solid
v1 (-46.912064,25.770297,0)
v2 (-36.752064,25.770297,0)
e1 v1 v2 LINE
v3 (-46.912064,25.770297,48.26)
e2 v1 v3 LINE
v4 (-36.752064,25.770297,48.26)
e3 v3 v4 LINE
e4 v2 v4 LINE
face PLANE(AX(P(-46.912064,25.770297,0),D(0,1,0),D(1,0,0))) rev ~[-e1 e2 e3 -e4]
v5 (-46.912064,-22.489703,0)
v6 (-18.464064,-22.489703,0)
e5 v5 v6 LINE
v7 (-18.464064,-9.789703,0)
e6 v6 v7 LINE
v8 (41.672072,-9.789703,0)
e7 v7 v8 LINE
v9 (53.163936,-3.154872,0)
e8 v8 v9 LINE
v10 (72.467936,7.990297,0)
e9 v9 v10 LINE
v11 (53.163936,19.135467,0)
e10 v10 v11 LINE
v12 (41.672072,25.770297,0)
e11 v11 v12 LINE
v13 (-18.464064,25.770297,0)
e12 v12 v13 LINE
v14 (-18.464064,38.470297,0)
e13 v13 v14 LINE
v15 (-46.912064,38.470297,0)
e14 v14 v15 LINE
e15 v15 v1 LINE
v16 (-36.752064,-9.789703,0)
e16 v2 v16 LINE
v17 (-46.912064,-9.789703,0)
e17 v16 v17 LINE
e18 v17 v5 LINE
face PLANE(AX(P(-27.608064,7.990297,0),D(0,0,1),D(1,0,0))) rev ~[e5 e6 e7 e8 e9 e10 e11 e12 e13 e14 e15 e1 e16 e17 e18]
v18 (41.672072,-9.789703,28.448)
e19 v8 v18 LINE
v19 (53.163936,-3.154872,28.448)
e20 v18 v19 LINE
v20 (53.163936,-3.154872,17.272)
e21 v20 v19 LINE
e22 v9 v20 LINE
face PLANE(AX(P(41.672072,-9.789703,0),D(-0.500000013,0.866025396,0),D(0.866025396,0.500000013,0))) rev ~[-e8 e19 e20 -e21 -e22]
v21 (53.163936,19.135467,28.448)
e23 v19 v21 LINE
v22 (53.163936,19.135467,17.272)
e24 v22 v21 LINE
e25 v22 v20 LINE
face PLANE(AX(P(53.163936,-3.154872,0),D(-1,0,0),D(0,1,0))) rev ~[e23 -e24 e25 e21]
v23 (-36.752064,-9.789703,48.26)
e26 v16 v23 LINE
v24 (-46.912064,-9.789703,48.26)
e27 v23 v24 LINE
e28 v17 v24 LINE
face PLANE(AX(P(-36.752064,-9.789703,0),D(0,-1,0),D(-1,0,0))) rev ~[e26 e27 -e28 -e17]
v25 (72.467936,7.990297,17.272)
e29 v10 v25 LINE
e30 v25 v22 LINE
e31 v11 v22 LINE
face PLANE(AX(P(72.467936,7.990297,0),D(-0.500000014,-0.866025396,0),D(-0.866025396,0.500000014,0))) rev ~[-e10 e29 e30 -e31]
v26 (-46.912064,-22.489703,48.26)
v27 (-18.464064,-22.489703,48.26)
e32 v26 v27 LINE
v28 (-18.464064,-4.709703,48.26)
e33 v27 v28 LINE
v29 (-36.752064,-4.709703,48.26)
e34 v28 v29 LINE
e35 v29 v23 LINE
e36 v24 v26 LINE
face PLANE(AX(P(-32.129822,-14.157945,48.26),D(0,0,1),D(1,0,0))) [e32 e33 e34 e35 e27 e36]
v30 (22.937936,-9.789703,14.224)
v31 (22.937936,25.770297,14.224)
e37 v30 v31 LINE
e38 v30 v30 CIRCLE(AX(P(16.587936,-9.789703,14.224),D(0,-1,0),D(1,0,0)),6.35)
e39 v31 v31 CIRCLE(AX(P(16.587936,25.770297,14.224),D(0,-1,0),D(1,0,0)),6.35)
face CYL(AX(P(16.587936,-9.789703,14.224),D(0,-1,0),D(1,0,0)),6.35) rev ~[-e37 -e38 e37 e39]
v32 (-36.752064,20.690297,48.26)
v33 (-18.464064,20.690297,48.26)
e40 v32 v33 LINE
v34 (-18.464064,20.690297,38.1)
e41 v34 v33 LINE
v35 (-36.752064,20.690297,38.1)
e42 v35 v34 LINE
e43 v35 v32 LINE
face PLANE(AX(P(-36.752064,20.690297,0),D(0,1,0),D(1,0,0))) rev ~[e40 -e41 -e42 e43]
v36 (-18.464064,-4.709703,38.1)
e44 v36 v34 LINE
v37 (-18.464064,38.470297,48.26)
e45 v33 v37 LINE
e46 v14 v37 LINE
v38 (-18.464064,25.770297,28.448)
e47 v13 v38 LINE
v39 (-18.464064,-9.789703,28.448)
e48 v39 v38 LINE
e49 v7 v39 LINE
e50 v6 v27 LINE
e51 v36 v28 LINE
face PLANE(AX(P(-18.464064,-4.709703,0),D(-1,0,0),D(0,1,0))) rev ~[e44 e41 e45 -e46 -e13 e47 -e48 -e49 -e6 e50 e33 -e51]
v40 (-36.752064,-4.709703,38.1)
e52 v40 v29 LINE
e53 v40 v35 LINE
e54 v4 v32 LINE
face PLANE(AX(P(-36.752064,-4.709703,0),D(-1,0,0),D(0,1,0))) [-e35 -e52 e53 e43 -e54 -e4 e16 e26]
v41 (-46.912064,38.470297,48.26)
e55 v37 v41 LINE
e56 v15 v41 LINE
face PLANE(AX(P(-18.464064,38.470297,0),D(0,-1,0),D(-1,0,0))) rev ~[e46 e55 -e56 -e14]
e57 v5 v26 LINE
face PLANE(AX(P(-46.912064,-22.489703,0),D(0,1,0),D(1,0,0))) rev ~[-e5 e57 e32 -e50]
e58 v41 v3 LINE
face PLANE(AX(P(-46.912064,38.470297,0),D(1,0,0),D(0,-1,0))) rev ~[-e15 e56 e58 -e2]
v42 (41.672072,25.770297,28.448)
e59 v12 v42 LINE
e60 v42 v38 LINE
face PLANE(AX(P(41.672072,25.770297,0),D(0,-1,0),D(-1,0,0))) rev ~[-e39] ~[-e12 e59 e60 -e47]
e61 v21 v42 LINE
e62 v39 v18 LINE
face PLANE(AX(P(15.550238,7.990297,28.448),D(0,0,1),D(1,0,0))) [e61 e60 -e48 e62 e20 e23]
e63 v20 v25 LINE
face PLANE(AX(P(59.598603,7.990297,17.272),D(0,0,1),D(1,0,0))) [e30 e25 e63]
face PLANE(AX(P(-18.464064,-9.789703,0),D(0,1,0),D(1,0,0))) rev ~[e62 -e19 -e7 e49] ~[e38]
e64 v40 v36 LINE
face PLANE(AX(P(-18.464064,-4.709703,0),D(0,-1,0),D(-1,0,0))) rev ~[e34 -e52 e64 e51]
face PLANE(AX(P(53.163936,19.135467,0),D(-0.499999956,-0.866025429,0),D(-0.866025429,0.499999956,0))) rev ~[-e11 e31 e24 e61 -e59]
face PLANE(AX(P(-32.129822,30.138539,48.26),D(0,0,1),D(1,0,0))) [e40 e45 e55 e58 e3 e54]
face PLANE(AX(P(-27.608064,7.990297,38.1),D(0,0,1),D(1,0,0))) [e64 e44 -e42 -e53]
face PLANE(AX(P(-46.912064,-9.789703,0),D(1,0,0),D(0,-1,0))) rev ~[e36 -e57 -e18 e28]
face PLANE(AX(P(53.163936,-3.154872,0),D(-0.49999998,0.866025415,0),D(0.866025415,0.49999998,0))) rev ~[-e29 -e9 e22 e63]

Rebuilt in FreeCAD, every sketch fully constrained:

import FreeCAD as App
import Part
import Sketcher

V = App.Vector
Q = App.Units.Quantity

doc = App.newDocument("Part")
body = doc.addObject("PartDesign::Body", "Body")

# Sketch on XY plane
sketch1 = doc.addObject("Sketcher::SketchObject", "Sketch")
body.addObject(sketch1)
sketch1.AttachmentSupport = (doc.XY_Plane, [""])
sketch1.MapMode = "FlatFace"
sketch1.addGeometry([
    Part.LineSegment(V(41.672072, 25.770297, 0), V(-18.464064, 25.770297, 0)),  # 0
    Part.LineSegment(V(-18.464064, 25.770297, 0), V(-18.464064, -9.789703, 0)),  # 1
    Part.LineSegment(V(-18.464064, -9.789703, 0), V(41.672072, -9.789703, 0)),  # 2
    Part.LineSegment(V(41.672072, -9.789703, 0), V(53.163936, -3.154872, 0)),  # 3
    Part.LineSegment(V(53.163936, -3.154872, 0), V(53.163936, 19.135467, 0)),  # 4
    Part.LineSegment(V(53.163936, 19.135467, 0), V(41.672072, 25.770297, 0)),  # 5
], False)
sketch1.addConstraint([
    Sketcher.Constraint("Coincident", 0, 2, 1, 1),
    Sketcher.Constraint("Coincident", 1, 2, 2, 1),
    Sketcher.Constraint("Coincident", 2, 2, 3, 1),
    Sketcher.Constraint("Coincident", 3, 2, 4, 1),
    Sketcher.Constraint("Coincident", 4, 2, 5, 1),
    Sketcher.Constraint("Coincident", 5, 2, 0, 1),
    Sketcher.Constraint("Horizontal", 0),
    Sketcher.Constraint("Vertical", 1),
    Sketcher.Constraint("Horizontal", 2),
    Sketcher.Constraint("Vertical", 4),
    Sketcher.Constraint("Vertical", 2, 2, 5, 2),
    Sketcher.Constraint("Equal", 3, 5),
    Sketcher.Constraint("DistanceY", 1, 2, 1, 1, Q("1.4 in")),
    Sketcher.Constraint("Angle", 3, Q("30.000001 deg")),
    Sketcher.Constraint("DistanceX", 1, 2, 3, 2, Q("2.82 in")),
    Sketcher.Constraint("DistanceY", 4, 1, 4, 2, 22.290339),
    Sketcher.Constraint("DistanceX", 0, 2, -1, 1, 18.464064),
    Sketcher.Constraint("DistanceY", -1, 1, 0, 2, 25.770297),
])
pad1 = doc.addObject("PartDesign::Pad", "Pad")
body.addObject(pad1)
pad1.Profile = sketch1
pad1.Length = Q("1.12 in")

# Sketch on XY plane
sketch2 = doc.addObject("Sketcher::SketchObject", "Sketch001")
body.addObject(sketch2)
sketch2.AttachmentSupport = (doc.XY_Plane, [""])
sketch2.MapMode = "FlatFace"
sketch2.addGeometry([
    Part.LineSegment(V(72.467936, 7.990297, 0), V(53.163936, 19.135467, 0)),
    Part.LineSegment(V(53.163936, 19.135467, 0), V(53.163936, -3.154872, 0)),
    Part.LineSegment(V(53.163936, -3.154872, 0), V(72.467936, 7.990297, 0)),
], False)
sketch2.addConstraint([
    Sketcher.Constraint("Coincident", 0, 2, 1, 1),
    Sketcher.Constraint("Coincident", 1, 2, 2, 1),
    Sketcher.Constraint("Coincident", 2, 2, 0, 1),
    Sketcher.Constraint("Vertical", 1),
    Sketcher.Constraint("Equal", 0, 2),
    Sketcher.Constraint("Angle", 0, Q("149.999999 deg")),
    Sketcher.Constraint("DistanceX", 1, 2, 2, 2, Q("0.76 in")),
    Sketcher.Constraint("DistanceX", -1, 1, 0, 2, 53.163936),
    Sketcher.Constraint("DistanceY", -1, 1, 0, 2, 19.135467),
])
pad2 = doc.addObject("PartDesign::Pad", "Pad001")
body.addObject(pad2)
pad2.Profile = sketch2
pad2.Length = Q("0.68 in")

# Sketch on XY plane
sketch3 = doc.addObject("Sketcher::SketchObject", "Sketch002")
body.addObject(sketch3)
sketch3.AttachmentSupport = (doc.XY_Plane, [""])
sketch3.MapMode = "FlatFace"
sketch3.addGeometry([
    Part.LineSegment(V(-18.464064, 38.470297, 0), V(-46.912064, 38.470297, 0)),  # 0
    Part.LineSegment(V(-46.912064, 38.470297, 0), V(-46.912064, 25.770297, 0)),  # 1
    Part.LineSegment(V(-46.912064, 25.770297, 0), V(-36.752064, 25.770297, 0)),  # 2
    Part.LineSegment(V(-36.752064, 25.770297, 0), V(-36.752064, 20.690297, 0)),  # 3
    Part.LineSegment(V(-36.752064, 20.690297, 0), V(-18.464064, 20.690297, 0)),  # 4
    Part.LineSegment(V(-18.464064, 20.690297, 0), V(-18.464064, 38.470297, 0)),  # 5
    Part.LineSegment(V(-18.464064, -4.709703, 0), V(-36.752064, -4.709703, 0)),  # 6
    Part.LineSegment(V(-36.752064, -4.709703, 0), V(-36.752064, -9.789703, 0)),  # 7
    Part.LineSegment(V(-36.752064, -9.789703, 0), V(-46.912064, -9.789703, 0)),  # 8
    Part.LineSegment(V(-46.912064, -9.789703, 0), V(-46.912064, -22.489703, 0)),  # 9
    Part.LineSegment(V(-46.912064, -22.489703, 0), V(-18.464064, -22.489703, 0)),  # 10
    Part.LineSegment(V(-18.464064, -22.489703, 0), V(-18.464064, -4.709703, 0)),  # 11
], False)
sketch3.addConstraint([
    Sketcher.Constraint("Coincident", 0, 2, 1, 1),
    Sketcher.Constraint("Coincident", 1, 2, 2, 1),
    Sketcher.Constraint("Coincident", 2, 2, 3, 1),
    Sketcher.Constraint("Coincident", 3, 2, 4, 1),
    Sketcher.Constraint("Coincident", 4, 2, 5, 1),
    Sketcher.Constraint("Coincident", 5, 2, 0, 1),
    Sketcher.Constraint("Coincident", 6, 2, 7, 1),
    Sketcher.Constraint("Coincident", 7, 2, 8, 1),
    Sketcher.Constraint("Coincident", 8, 2, 9, 1),
    Sketcher.Constraint("Coincident", 9, 2, 10, 1),
    Sketcher.Constraint("Coincident", 10, 2, 11, 1),
    Sketcher.Constraint("Coincident", 11, 2, 6, 1),
    Sketcher.Constraint("Horizontal", 0),
    Sketcher.Constraint("Vertical", 1),
    Sketcher.Constraint("Horizontal", 2),
    Sketcher.Constraint("Vertical", 3),
    Sketcher.Constraint("Horizontal", 4),
    Sketcher.Constraint("Vertical", 5),
    Sketcher.Constraint("Horizontal", 6),
    Sketcher.Constraint("Vertical", 7),
    Sketcher.Constraint("Horizontal", 8),
    Sketcher.Constraint("Vertical", 9),
    Sketcher.Constraint("Horizontal", 10),
    Sketcher.Constraint("Vertical", 11),
    Sketcher.Constraint("Vertical", 3, 2, 6, 2),
    Sketcher.Constraint("Vertical", 1, 2, 8, 2),
    Sketcher.Constraint("Vertical", 5, 2, 10, 2),
    Sketcher.Constraint("Equal", 3, 7),
    Sketcher.Constraint("Equal", 1, 9),
    Sketcher.Constraint("DistanceX", 2, 1, 2, 2, Q("0.4 in")),
    Sketcher.Constraint("DistanceY", 1, 2, 1, 1, Q("0.5 in")),
    Sketcher.Constraint("DistanceY", 3, 2, 3, 1, Q("0.2 in")),
    Sketcher.Constraint("DistanceY", 6, 2, 3, 2, Q("1 in")),
    Sketcher.Constraint("DistanceX", 0, 2, 0, 1, Q("1.12 in")),
    Sketcher.Constraint("DistanceX", 0, 2, -1, 1, 46.912064),
    Sketcher.Constraint("DistanceY", -1, 1, 0, 2, 38.470297),
])
pad3 = doc.addObject("PartDesign::Pad", "Pad002")
body.addObject(pad3)
pad3.Profile = sketch3
pad3.Length = Q("1.9 in")

# Sketch on XY plane
sketch4 = doc.addObject("Sketcher::SketchObject", "Sketch003")
body.addObject(sketch4)
sketch4.AttachmentSupport = (doc.XY_Plane, [""])
sketch4.MapMode = "FlatFace"
sketch4.addGeometry([
    Part.LineSegment(V(-36.752064, 20.690297, 0), V(-36.752064, -4.709703, 0)),
    Part.LineSegment(V(-36.752064, -4.709703, 0), V(-18.464064, -4.709703, 0)),
    Part.LineSegment(V(-18.464064, -4.709703, 0), V(-18.464064, 20.690297, 0)),
    Part.LineSegment(V(-18.464064, 20.690297, 0), V(-36.752064, 20.690297, 0)),
], False)
sketch4.addConstraint([
    Sketcher.Constraint("Coincident", 0, 2, 1, 1),
    Sketcher.Constraint("Coincident", 1, 2, 2, 1),
    Sketcher.Constraint("Coincident", 2, 2, 3, 1),
    Sketcher.Constraint("Coincident", 3, 2, 0, 1),
    Sketcher.Constraint("Vertical", 0),
    Sketcher.Constraint("Horizontal", 1),
    Sketcher.Constraint("Vertical", 2),
    Sketcher.Constraint("Horizontal", 3),
    Sketcher.Constraint("DistanceY", 0, 2, 0, 1, Q("1 in")),
    Sketcher.Constraint("DistanceX", 1, 1, 1, 2, Q("0.72 in")),
    Sketcher.Constraint("DistanceX", 0, 2, -1, 1, 36.752064),
    Sketcher.Constraint("DistanceY", 0, 2, -1, 1, 4.709703),
])
pad4 = doc.addObject("PartDesign::Pad", "Pad003")
body.addObject(pad4)
pad4.Profile = sketch4
pad4.Length = Q("1.5 in")

# Sketch on XZ plane
sketch5 = doc.addObject("Sketcher::SketchObject", "Sketch004")
body.addObject(sketch5)
sketch5.AttachmentSupport = (doc.XZ_Plane, [""])
sketch5.MapMode = "FlatFace"
sketch5.AttachmentOffset = App.Placement(V(0, 0, 9.789703), App.Rotation())
sketch5.addGeometry(Part.Circle(V(16.587936, 14.224, 0), V(0, 0, 1), 6.35), False)
sketch5.addConstraint([
    Sketcher.Constraint("Diameter", 0, Q("0.5 in")),
    Sketcher.Constraint("DistanceY", -1, 1, 0, 3, Q("0.56 in")),
    Sketcher.Constraint("DistanceX", -1, 1, 0, 3, 16.587936),
])
pocket1 = doc.addObject("PartDesign::Pocket", "Pocket")
body.addObject(pocket1)
pocket1.Profile = sketch5
pocket1.Length = Q("2.1 in")

doc.recompute()
